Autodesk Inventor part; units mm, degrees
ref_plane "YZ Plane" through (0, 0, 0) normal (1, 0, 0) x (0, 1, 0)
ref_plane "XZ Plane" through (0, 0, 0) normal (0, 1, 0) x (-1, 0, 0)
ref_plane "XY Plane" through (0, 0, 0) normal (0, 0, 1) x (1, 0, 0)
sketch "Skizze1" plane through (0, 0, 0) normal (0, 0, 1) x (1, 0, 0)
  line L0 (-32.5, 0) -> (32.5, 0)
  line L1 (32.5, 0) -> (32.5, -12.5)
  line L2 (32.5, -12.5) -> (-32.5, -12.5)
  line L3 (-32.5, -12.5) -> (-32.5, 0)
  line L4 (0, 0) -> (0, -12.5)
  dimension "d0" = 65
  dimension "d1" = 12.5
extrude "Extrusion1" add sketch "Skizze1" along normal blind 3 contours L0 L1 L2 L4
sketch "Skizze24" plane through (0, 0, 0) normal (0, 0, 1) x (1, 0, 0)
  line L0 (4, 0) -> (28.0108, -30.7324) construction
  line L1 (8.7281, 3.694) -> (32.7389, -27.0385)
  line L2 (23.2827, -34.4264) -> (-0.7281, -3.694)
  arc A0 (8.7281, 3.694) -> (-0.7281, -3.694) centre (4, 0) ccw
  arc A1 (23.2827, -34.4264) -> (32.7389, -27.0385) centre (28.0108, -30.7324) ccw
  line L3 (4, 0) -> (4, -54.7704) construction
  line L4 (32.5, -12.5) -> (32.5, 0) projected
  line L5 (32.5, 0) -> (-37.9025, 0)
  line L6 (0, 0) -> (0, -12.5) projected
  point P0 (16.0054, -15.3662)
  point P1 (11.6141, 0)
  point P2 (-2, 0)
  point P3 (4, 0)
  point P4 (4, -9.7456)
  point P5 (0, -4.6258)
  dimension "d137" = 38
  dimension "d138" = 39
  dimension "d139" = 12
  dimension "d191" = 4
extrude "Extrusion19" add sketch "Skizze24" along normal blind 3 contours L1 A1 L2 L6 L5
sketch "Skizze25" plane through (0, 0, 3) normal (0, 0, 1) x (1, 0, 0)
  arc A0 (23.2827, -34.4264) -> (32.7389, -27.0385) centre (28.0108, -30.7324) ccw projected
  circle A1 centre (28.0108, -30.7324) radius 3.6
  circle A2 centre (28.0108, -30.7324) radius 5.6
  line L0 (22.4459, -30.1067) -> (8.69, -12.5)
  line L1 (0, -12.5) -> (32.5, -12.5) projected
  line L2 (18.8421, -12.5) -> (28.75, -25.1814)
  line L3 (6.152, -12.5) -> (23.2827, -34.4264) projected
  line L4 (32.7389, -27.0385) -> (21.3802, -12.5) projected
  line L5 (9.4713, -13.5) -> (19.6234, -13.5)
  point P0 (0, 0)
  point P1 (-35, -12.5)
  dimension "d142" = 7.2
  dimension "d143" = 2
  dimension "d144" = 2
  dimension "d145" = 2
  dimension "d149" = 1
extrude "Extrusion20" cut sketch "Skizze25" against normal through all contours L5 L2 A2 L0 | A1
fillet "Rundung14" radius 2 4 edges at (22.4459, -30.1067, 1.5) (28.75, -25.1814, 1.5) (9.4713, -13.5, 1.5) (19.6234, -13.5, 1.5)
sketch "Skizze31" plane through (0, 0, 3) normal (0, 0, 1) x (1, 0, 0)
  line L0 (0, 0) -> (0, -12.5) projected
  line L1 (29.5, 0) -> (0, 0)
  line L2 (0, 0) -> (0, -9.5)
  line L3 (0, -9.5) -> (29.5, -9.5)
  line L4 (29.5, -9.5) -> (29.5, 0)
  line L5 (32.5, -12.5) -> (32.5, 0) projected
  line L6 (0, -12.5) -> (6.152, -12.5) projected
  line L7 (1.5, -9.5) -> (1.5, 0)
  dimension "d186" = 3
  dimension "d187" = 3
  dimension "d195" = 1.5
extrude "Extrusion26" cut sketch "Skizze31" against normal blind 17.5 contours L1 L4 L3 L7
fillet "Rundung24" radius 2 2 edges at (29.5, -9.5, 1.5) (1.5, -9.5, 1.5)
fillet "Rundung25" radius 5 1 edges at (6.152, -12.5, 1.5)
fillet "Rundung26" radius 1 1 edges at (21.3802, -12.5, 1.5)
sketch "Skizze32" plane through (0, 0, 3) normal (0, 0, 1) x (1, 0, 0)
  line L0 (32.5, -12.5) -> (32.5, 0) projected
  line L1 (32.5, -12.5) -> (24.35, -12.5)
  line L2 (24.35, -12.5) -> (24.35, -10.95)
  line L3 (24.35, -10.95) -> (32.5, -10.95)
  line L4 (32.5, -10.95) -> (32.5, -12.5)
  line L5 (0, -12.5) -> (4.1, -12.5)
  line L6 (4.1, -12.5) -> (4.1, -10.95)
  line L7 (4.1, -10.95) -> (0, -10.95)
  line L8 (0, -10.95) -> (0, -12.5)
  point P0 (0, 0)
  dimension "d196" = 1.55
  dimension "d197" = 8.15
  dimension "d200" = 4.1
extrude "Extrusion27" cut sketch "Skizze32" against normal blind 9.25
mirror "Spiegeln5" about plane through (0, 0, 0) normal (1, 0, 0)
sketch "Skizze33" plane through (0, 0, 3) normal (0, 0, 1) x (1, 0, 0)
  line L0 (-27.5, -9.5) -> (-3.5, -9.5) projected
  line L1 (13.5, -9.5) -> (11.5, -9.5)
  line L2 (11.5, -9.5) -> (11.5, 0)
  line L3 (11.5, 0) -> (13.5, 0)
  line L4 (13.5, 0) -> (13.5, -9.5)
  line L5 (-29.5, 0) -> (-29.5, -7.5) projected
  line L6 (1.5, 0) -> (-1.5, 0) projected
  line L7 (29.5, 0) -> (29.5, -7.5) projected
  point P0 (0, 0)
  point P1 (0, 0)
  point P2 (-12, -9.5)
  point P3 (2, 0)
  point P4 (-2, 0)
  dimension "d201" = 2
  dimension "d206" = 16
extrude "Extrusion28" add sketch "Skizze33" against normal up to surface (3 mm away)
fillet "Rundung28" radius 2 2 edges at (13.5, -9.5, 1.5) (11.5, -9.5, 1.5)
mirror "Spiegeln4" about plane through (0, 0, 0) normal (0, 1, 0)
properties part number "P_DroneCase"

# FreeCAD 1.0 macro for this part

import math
import FreeCAD as App
import Part
import Sketcher

V = App.Vector
Q = App.Units.Quantity


def edges_at(feature, points):
    """Names of the edges that pass closest to the given points."""
    edges = feature.Shape.Edges
    near = lambda p: min(range(len(edges)), key=lambda i: edges[i].distToShape(Part.Vertex(*p))[0])
    return sorted({f"Edge{near(p) + 1}" for p in points})

doc = App.newDocument("Part")
params = doc.addObject("Spreadsheet::Sheet", "Params")
for row, (alias, value) in enumerate([
    ("sketch1_height", "12.5 mm"),
    ("sketch1_width", "32.5 mm"),
    ("pad1_length", "3 mm"),
    ("sketch2_radius", "6 mm"),
    ("pad2_length", "3 mm"),
    ("sketch3_diameter", "7.2 mm"),
    ("sketch3_radius", "5.6 mm"),
    ("fillet_radius", "2 mm"),
    ("sketch4_width", "28 mm"),
    ("sketch4_height", "9.5 mm"),
    ("pocket2_length", "17.5 mm"),
    ("fillet2_radius", "2 mm"),
    ("fillet3_radius", "5 mm"),
    ("fillet4_radius", "1 mm"),
    ("sketch5_width", "4.1 mm"),
    ("sketch5_width2", "8.15 mm"),
    ("sketch5_height", "1.55 mm"),
    ("pocket3_length", "9.25 mm"),
    ("sketch6_width", "2 mm"),
    ("sketch6_height", "9.5 mm"),
    ("pad3_length", "3 mm"),
    ("fillet5_radius", "2 mm"),
], start=1):
    params.set(f"A{row}", alias)
    params.set(f"B{row}", "=" + value)
    params.setAlias(f"B{row}", alias)

body = doc.addObject("PartDesign::Body", "Body")

# Sketch on XY plane
sketch1 = body.newObject("Sketcher::SketchObject", "Sketch")
sketch1.AttachmentSupport = (doc.getObject("XY_Plane"), [""])
sketch1.MapMode = "FlatFace"
sketch1.addGeometry([
    Part.LineSegment(V(32.5, 0, 0), V(0, 0, 0)),
    Part.LineSegment(V(0, 0, 0), V(0, -12.5, 0)),
    Part.LineSegment(V(0, -12.5, 0), V(32.5, -12.5, 0)),
    Part.LineSegment(V(32.5, -12.5, 0), V(32.5, 0, 0)),
], False)
sketch1.addConstraint([
    Sketcher.Constraint("Coincident", 0, 2, 1, 1),
    Sketcher.Constraint("Coincident", 1, 2, 2, 1),
    Sketcher.Constraint("Coincident", 2, 2, 3, 1),
    Sketcher.Constraint("Coincident", 3, 2, 0, 1),
    Sketcher.Constraint("Horizontal", 0),
    Sketcher.Constraint("Vertical", 1),
    Sketcher.Constraint("Horizontal", 2),
    Sketcher.Constraint("Vertical", 3),
    Sketcher.Constraint("Coincident", 0, 2, -1, 1),
    Sketcher.Constraint("DistanceY", 1, 2, 1, 1, Q("12.5 mm")),
    Sketcher.Constraint("DistanceX", 0, 2, 0, 1, Q("32.5 mm")),
])
sketch1.setExpression("Constraints[9]", "Params.sketch1_height")
sketch1.setExpression("Constraints[10]", "Params.sketch1_width")
pad1 = body.newObject("PartDesign::Pad", "Pad")
pad1.Profile = sketch1
pad1.setExpression("Length", "Params.pad1_length")

# Sketch on XY plane
sketch2 = body.newObject("Sketcher::SketchObject", "Sketch001")
sketch2.AttachmentSupport = (doc.getObject("XY_Plane"), [""])
sketch2.MapMode = "FlatFace"
sketch2.addGeometry([
    Part.LineSegment(V(32.7389, -27.0385, 0), V(11.614162, 0, 0)),  # 0
    Part.LineSegment(V(11.614162, 0, 0), V(0, 0, 0)),  # 1
    Part.LineSegment(V(0, 0, 0), V(0, -4.625925, 0)),  # 2
    Part.LineSegment(V(0, -4.625925, 0), V(23.2827, -34.4264, 0)),  # 3
    Part.ArcOfCircle(Part.Circle(V(28.0108, -30.7324, 0), V(0, 0, 1), 6.000047), math.radians(-141.999974), math.radians(37.999273)),  # 4
], False)
sketch2.addConstraint([
    Sketcher.Constraint("Coincident", 0, 2, 1, 1),
    Sketcher.Constraint("Coincident", 1, 2, 2, 1),
    Sketcher.Constraint("Coincident", 2, 2, 3, 1),
    Sketcher.Constraint("Tangent", 3, 2, 4, 1),
    Sketcher.Constraint("Tangent", 4, 2, 0, 1),
    Sketcher.Constraint("Horizontal", 1),
    Sketcher.Constraint("Vertical", 2),
    Sketcher.Constraint("Coincident", 1, 2, -1, 1),
    Sketcher.Constraint("Parallel", 0, 3),
    Sketcher.Constraint("Radius", 4, Q("6 mm")),
    Sketcher.Constraint("Angle", 0, Q("128 deg")),
    Sketcher.Constraint("DistanceY", 2, 2, 2, 1, Q("4.626 mm")),
    Sketcher.Constraint("DistanceX", -1, 1, 4, 2, Q("32.739 mm")),
])
sketch2.setExpression("Constraints[9]", "Params.sketch2_radius")
pad2 = body.newObject("PartDesign::Pad", "Pad001")
pad2.Profile = sketch2
pad2.setExpression("Length", "Params.pad2_length")

# Sketch on XY plane
sketch3 = body.newObject("Sketcher::SketchObject", "Sketch002")
sketch3.AttachmentSupport = (doc.getObject("XY_Plane"), [""])
sketch3.MapMode = "FlatFace"
sketch3.AttachmentOffset = App.Placement(V(0, 0, 3), App.Rotation())
sketch3.addGeometry([
    Part.LineSegment(V(19.6234, -13.5, 0), V(9.4713, -13.5, 0)),  # 0
    Part.LineSegment(V(9.471292, -13.500006, 0), V(22.4459, -30.1067, 0)),  # 1
    Part.ArcOfCircle(Part.Circle(V(28.0108, -30.7324, 0), V(0, 0, 1), 5.6), math.radians(82.414822), math.radians(173.584785)),  # 2
    Part.LineSegment(V(28.75, -25.1814, 0), V(19.623396, -13.500003, 0)),  # 3
    Part.Circle(V(28.0108, -30.7324, 0), V(0, 0, 1), 3.6),  # 4
], False)
sketch3.addConstraint([
    Sketcher.Constraint("Coincident", 0, 2, 1, 1),
    Sketcher.Constraint("Coincident", 1, 2, 2, 2),
    Sketcher.Constraint("Coincident", 2, 1, 3, 1),
    Sketcher.Constraint("Coincident", 3, 2, 0, 1),
    Sketcher.Constraint("Horizontal", 0),
    Sketcher.Constraint("Coincident", 4, 3, 2, 3),
    Sketcher.Constraint("Parallel", 1, 3),
    Sketcher.Constraint("Diameter", 4, Q("7.2 mm")),
    Sketcher.Constraint("Radius", 2, Q("5.6 mm")),
    Sketcher.Constraint("Angle", 1, Q("-52 deg")),
    Sketcher.Constraint("DistanceY", 0, 2, -1, 1, Q("13.5 mm")),
    Sketcher.Constraint("DistanceX", 0, 2, 0, 1, Q("10.152 mm")),
    Sketcher.Constraint("DistanceX", -1, 1, 2, 1, Q("28.75 mm")),
    Sketcher.Constraint("Distance", 3, Q("14.824 mm")),
    Sketcher.Constraint("DistanceX", -1, 1, 1, 2, Q("22.446 mm")),
])
sketch3.setExpression("Constraints[7]", "Params.sketch3_diameter")
sketch3.setExpression("Constraints[8]", "Params.sketch3_radius")
pocket1 = body.newObject("PartDesign::Pocket", "Pocket")
pocket1.Profile = sketch3
pocket1.Type = "ThroughAll"
doc.recompute()

fillet = body.newObject("PartDesign::Fillet", "Fillet")
fillet.Base = (pocket1, edges_at(pocket1, [
    (22.446, -30.107, 1.5),
    (28.75, -25.181, 1.5),
    (9.471, -13.5, 1.5),
    (19.623, -13.5, 1.5),
]))
fillet.setExpression("Radius", "Params.fillet_radius")

# Sketch on XY plane
sketch4 = body.newObject("Sketcher::SketchObject", "Sketch003")
sketch4.AttachmentSupport = (doc.getObject("XY_Plane"), [""])
sketch4.MapMode = "FlatFace"
sketch4.AttachmentOffset = App.Placement(V(0, 0, 3), App.Rotation())
sketch4.addGeometry([
    Part.LineSegment(V(29.5, 0, 0), V(1.5, 0, 0)),
    Part.LineSegment(V(1.5, 0, 0), V(1.5, -9.5, 0)),
    Part.LineSegment(V(1.5, -9.5, 0), V(29.5, -9.5, 0)),
    Part.LineSegment(V(29.5, -9.5, 0), V(29.5, 0, 0)),
], False)
sketch4.addConstraint([
    Sketcher.Constraint("Coincident", 0, 2, 1, 1),
    Sketcher.Constraint("Coincident", 1, 2, 2, 1),
    Sketcher.Constraint("Coincident", 2, 2, 3, 1),
    Sketcher.Constraint("Coincident", 3, 2, 0, 1),
    Sketcher.Constraint("Horizontal", 0),
    Sketcher.Constraint("Vertical", 1),
    Sketcher.Constraint("Horizontal", 2),
    Sketcher.Constraint("Vertical", 3),
    Sketcher.Constraint("PointOnObject", 0, 2, -1),
    Sketcher.Constraint("DistanceX", -1, 1, 0, 2, Q("1.5 mm")),
    Sketcher.Constraint("DistanceX", 0, 2, 0, 1, Q("28 mm")),
    Sketcher.Constraint("DistanceY", 1, 2, 1, 1, Q("9.5 mm")),
])
sketch4.setExpression("Constraints[10]", "Params.sketch4_width")
sketch4.setExpression("Constraints[11]", "Params.sketch4_height")
pocket2 = body.newObject("PartDesign::Pocket", "Pocket001")
pocket2.Profile = sketch4
pocket2.setExpression("Length", "Params.pocket2_length")
doc.recompute()

fillet2 = body.newObject("PartDesign::Fillet", "Fillet001")
fillet2.Base = (pocket2, edges_at(pocket2, [(29.5, -9.5, 1.5), (1.5, -9.5, 1.5)]))
fillet2.setExpression("Radius", "Params.fillet2_radius")
doc.recompute()

fillet3 = body.newObject("PartDesign::Fillet", "Fillet002")
fillet3.Base = (fillet2, edges_at(fillet2, [(6.152, -12.5, 1.5)]))
fillet3.setExpression("Radius", "Params.fillet3_radius")
doc.recompute()

fillet4 = body.newObject("PartDesign::Fillet", "Fillet003")
fillet4.Base = (fillet3, edges_at(fillet3, [(21.38, -12.5, 1.5)]))
fillet4.setExpression("Radius", "Params.fillet4_radius")

# Sketch on XY plane
sketch5 = body.newObject("Sketcher::SketchObject", "Sketch004")
sketch5.AttachmentSupport = (doc.getObject("XY_Plane"), [""])
sketch5.MapMode = "FlatFace"
sketch5.AttachmentOffset = App.Placement(V(0, 0, 3), App.Rotation())
sketch5.addGeometry([
    Part.LineSegment(V(24.35, -12.5, 0), V(32.5, -12.5, 0)),  # 0
    Part.LineSegment(V(32.5, -12.5, 0), V(32.5, -10.95, 0)),  # 1
    Part.LineSegment(V(32.5, -10.95, 0), V(24.35, -10.95, 0)),  # 2
    Part.LineSegment(V(24.35, -10.95, 0), V(24.35, -12.5, 0)),  # 3
    Part.LineSegment(V(0, -10.95, 0), V(0, -12.5, 0)),  # 4
    Part.LineSegment(V(0, -12.5, 0), V(4.1, -12.5, 0)),  # 5
    Part.LineSegment(V(4.1, -12.5, 0), V(4.1, -10.95, 0)),  # 6
    Part.LineSegment(V(4.1, -10.95, 0), V(0, -10.95, 0)),  # 7
], False)
sketch5.addConstraint([
    Sketcher.Constraint("Coincident", 0, 2, 1, 1),
    Sketcher.Constraint("Coincident", 1, 2, 2, 1),
    Sketcher.Constraint("Coincident", 2, 2, 3, 1),
    Sketcher.Constraint("Coincident", 3, 2, 0, 1),
    Sketcher.Constraint("Coincident", 4, 2, 5, 1),
    Sketcher.Constraint("Coincident", 5, 2, 6, 1),
    Sketcher.Constraint("Coincident", 6, 2, 7, 1),
    Sketcher.Constraint("Coincident", 7, 2, 4, 1),
    Sketcher.Constraint("Horizontal", 0),
    Sketcher.Constraint("Vertical", 1),
    Sketcher.Constraint("Horizontal", 2),
    Sketcher.Constraint("Vertical", 3),
    Sketcher.Constraint("Vertical", 4),
    Sketcher.Constraint("Horizontal", 5),
    Sketcher.Constraint("Vertical", 6),
    Sketcher.Constraint("Horizontal", 7),
    Sketcher.Constraint("PointOnObject", 4, 2, -2),
    Sketcher.Constraint("Horizontal", 3, 2, 4, 2),
    Sketcher.Constraint("Horizontal", 2, 2, 6, 2),
    Sketcher.Constraint("DistanceX", 5, 1, 5, 2, Q("4.1 mm")),
    Sketcher.Constraint("DistanceX", 0, 1, 0, 2, Q("8.15 mm")),
    Sketcher.Constraint("DistanceY", 1, 1, 1, 2, Q("1.55 mm")),
    Sketcher.Constraint("DistanceX", -1, 1, 0, 2, Q("32.5 mm")),
    Sketcher.Constraint("DistanceY", 0, 2, -1, 1, Q("12.5 mm")),
])
sketch5.setExpression("Constraints[19]", "Params.sketch5_width")
sketch5.setExpression("Constraints[20]", "Params.sketch5_width2")
sketch5.setExpression("Constraints[21]", "Params.sketch5_height")
pocket3 = body.newObject("PartDesign::Pocket", "Pocket002")
pocket3.Profile = sketch5
pocket3.setExpression("Length", "Params.pocket3_length")
doc.recompute()

mirrored = body.newObject("PartDesign::Mirrored", "Mirrored")
mirrored.TransformMode = "Transform body"
mirrored.MirrorPlane = (doc.getObject("YZ_Plane"), [""])
body.Tip = mirrored

# Sketch on XY plane
sketch6 = body.newObject("Sketcher::SketchObject", "Sketch005")
sketch6.AttachmentSupport = (doc.getObject("XY_Plane"), [""])
sketch6.MapMode = "FlatFace"
sketch6.AttachmentOffset = App.Placement(V(0, 0, 3), App.Rotation())
sketch6.addGeometry([
    Part.LineSegment(V(11.5, -9.5, 0), V(13.5, -9.5, 0)),
    Part.LineSegment(V(13.5, -9.5, 0), V(13.5, 0, 0)),
    Part.LineSegment(V(13.5, 0, 0), V(11.5, 0, 0)),
    Part.LineSegment(V(11.5, 0, 0), V(11.5, -9.5, 0)),
], False)
sketch6.addConstraint([
    Sketcher.Constraint("Coincident", 0, 2, 1, 1),
    Sketcher.Constraint("Coincident", 1, 2, 2, 1),
    Sketcher.Constraint("Coincident", 2, 2, 3, 1),
    Sketcher.Constraint("Coincident", 3, 2, 0, 1),
    Sketcher.Constraint("Horizontal", 0),
    Sketcher.Constraint("Vertical", 1),
    Sketcher.Constraint("Horizontal", 2),
    Sketcher.Constraint("Vertical", 3),
    Sketcher.Constraint("PointOnObject", 1, 2, -1),
    Sketcher.Constraint("DistanceX", 0, 1, 0, 2, Q("2 mm")),
    Sketcher.Constraint("DistanceY", 1, 1, 1, 2, Q("9.5 mm")),
    Sketcher.Constraint("DistanceX", -1, 1, 0, 2, Q("13.5 mm")),
])
sketch6.setExpression("Constraints[9]", "Params.sketch6_width")
sketch6.setExpression("Constraints[10]", "Params.sketch6_height")
pad3 = body.newObject("PartDesign::Pad", "Pad002")
pad3.Profile = sketch6
pad3.setExpression("Length", "Params.pad3_length")
pad3.Reversed = True
doc.recompute()

fillet5 = body.newObject("PartDesign::Fillet", "Fillet004")
fillet5.Base = (pad3, edges_at(pad3, [(13.5, -9.5, 1.5), (11.5, -9.5, 1.5)]))
fillet5.setExpression("Radius", "Params.fillet5_radius")
doc.recompute()

mirrored2 = body.newObject("PartDesign::Mirrored", "Mirrored001")
mirrored2.TransformMode = "Transform body"
mirrored2.MirrorPlane = (doc.getObject("XZ_Plane"), [""])
body.Tip = mirrored2

doc.recompute()
